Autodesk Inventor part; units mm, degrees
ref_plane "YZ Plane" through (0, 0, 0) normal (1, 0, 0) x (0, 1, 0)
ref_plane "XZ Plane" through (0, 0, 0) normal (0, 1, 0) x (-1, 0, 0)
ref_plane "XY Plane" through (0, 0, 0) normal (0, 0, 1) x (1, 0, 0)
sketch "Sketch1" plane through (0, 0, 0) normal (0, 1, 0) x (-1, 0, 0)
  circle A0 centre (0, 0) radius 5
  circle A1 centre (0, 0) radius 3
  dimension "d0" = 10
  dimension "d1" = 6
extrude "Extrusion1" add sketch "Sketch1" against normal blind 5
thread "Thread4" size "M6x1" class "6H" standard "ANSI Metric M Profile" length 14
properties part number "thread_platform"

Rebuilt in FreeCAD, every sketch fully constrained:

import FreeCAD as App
import Part
import Sketcher

V = App.Vector
Q = App.Units.Quantity

doc = App.newDocument("Part")
body = doc.addObject("PartDesign::Body", "Body")

sketch1 = doc.addObject("Sketcher::SketchObject", "Sketch")
body.addObject(sketch1)
sketch1.AttachmentSupport = (doc.XZ_Plane, [""])
sketch1.MapMode = "FlatFace"
sketch1.addGeometry([
    Part.Circle(V(0, 0, 0), V(0, 0, 1), 5),
    Part.Circle(V(0, 0, 0), V(0, 0, 1), 3),
], False)
sketch1.addConstraint([
    Sketcher.Constraint("Coincident", 0, 3, -1, 1),
    Sketcher.Constraint("Coincident", 1, 3, -1, 1),
    Sketcher.Constraint("Diameter", 0, Q("10 mm")),
    Sketcher.Constraint("Diameter", 1, Q("6 mm")),
])
pad1 = doc.addObject("PartDesign::Pad", "Pad")
body.addObject(pad1)
pad1.Profile = sketch1
pad1.Length = 5

doc.recompute()
